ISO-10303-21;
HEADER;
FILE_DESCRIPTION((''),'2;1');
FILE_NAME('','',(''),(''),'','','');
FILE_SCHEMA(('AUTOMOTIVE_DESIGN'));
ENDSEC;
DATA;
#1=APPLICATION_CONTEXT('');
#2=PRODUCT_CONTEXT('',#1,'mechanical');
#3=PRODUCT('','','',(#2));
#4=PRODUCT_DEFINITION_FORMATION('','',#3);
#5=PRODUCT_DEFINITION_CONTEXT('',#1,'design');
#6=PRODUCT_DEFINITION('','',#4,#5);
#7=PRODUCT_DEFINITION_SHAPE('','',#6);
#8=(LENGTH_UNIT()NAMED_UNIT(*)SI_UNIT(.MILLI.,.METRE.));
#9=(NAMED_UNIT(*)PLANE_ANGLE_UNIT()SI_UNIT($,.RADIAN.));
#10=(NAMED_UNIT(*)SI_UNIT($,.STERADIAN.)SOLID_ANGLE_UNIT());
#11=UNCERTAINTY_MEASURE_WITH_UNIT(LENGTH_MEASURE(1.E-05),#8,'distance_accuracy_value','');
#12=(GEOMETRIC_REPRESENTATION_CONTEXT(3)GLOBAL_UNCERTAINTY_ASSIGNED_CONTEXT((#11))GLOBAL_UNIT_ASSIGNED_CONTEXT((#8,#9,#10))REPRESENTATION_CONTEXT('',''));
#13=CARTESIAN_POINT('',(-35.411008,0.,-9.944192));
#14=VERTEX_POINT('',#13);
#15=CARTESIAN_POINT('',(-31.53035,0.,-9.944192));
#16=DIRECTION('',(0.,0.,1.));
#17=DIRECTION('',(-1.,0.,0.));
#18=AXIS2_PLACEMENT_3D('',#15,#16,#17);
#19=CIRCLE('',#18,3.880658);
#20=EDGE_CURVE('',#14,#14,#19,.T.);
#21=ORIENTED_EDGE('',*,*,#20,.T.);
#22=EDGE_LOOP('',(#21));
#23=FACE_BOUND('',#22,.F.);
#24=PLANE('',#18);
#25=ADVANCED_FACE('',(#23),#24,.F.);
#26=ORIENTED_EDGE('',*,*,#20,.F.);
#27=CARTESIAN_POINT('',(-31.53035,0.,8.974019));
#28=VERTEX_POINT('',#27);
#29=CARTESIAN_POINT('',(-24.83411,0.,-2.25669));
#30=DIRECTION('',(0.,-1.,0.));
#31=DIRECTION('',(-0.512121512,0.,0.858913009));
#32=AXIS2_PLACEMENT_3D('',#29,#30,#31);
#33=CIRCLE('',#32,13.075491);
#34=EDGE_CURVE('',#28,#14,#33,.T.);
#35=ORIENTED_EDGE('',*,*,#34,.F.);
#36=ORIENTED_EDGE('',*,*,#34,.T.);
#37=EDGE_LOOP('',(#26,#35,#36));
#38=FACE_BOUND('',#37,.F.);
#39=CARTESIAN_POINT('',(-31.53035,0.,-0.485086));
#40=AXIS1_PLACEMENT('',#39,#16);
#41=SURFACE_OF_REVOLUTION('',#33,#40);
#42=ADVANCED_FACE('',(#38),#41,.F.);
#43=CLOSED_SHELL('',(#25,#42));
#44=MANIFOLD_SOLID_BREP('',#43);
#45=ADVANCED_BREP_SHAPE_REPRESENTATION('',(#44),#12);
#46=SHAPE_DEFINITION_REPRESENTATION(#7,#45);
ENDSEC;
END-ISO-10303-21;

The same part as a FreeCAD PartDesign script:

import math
import FreeCAD as App
import Part
import Sketcher
from FreeCAD import Vector

doc = App.newDocument("Part")
body = doc.addObject("PartDesign::Body", "Body")

sketch1 = doc.addObject("Sketcher::SketchObject", "Sketch")
body.addObject(sketch1)
sketch1.AttachmentSupport = (doc.XZ_Plane, [""])
sketch1.MapMode = "FlatFace"
sketch1.addGeometry(Part.ArcOfCircle(Part.Circle(Vector(-24.8, -2.3, 0), Vector(0, 0, 1), 13.1), math.radians(121), math.radians(216)), False)
sketch1.addGeometry(Part.LineSegment(Vector(-35.4, -9.9, 0), Vector(-31.5, -9.9, 0)), False)
sketch1.addGeometry(Part.LineSegment(Vector(-31.5, -9.9, 0), Vector(-31.5, 9, 0)), False)
sketch1.addGeometry(Part.LineSegment(Vector(-31.5, -9.9, 0), Vector(-31.5, 9, 0)), True)
sketch1.addConstraint(Sketcher.Constraint("Coincident", 0, 2, 1, 1))
sketch1.addConstraint(Sketcher.Constraint("Coincident", 1, 2, 2, 1))
sketch1.addConstraint(Sketcher.Constraint("Coincident", 2, 2, 0, 1))
sketch1.addConstraint(Sketcher.Constraint("Horizontal", 1))
sketch1.addConstraint(Sketcher.Constraint("Vertical", 2))
sketch1.addConstraint(Sketcher.Constraint("Vertical", 3))
sketch1.addConstraint(Sketcher.Constraint("Coincident", 3, 1, 1, 2))
sketch1.addConstraint(Sketcher.Constraint("Equal", 2, 3))
sketch1.addConstraint(Sketcher.Constraint("Radius", 0, 13.075491))
sketch1.addConstraint(Sketcher.Constraint("DistanceX", 1, 1, 1, 2, 3.880658))
sketch1.addConstraint(Sketcher.Constraint("DistanceY", 2, 1, 2, 2, 18.918211))
sketch1.addConstraint(Sketcher.Constraint("DistanceX", 0, 3, -1, 1, 24.83411))
sketch1.addConstraint(Sketcher.Constraint("DistanceY", 0, 3, -1, 1, 2.25669))
revolution = doc.addObject("PartDesign::Revolution", "Revolution")
body.addObject(revolution)
revolution.Profile = sketch1
revolution.ReferenceAxis = (sketch1, ["Axis0"])
revolution.Angle = 360

doc.recompute()
